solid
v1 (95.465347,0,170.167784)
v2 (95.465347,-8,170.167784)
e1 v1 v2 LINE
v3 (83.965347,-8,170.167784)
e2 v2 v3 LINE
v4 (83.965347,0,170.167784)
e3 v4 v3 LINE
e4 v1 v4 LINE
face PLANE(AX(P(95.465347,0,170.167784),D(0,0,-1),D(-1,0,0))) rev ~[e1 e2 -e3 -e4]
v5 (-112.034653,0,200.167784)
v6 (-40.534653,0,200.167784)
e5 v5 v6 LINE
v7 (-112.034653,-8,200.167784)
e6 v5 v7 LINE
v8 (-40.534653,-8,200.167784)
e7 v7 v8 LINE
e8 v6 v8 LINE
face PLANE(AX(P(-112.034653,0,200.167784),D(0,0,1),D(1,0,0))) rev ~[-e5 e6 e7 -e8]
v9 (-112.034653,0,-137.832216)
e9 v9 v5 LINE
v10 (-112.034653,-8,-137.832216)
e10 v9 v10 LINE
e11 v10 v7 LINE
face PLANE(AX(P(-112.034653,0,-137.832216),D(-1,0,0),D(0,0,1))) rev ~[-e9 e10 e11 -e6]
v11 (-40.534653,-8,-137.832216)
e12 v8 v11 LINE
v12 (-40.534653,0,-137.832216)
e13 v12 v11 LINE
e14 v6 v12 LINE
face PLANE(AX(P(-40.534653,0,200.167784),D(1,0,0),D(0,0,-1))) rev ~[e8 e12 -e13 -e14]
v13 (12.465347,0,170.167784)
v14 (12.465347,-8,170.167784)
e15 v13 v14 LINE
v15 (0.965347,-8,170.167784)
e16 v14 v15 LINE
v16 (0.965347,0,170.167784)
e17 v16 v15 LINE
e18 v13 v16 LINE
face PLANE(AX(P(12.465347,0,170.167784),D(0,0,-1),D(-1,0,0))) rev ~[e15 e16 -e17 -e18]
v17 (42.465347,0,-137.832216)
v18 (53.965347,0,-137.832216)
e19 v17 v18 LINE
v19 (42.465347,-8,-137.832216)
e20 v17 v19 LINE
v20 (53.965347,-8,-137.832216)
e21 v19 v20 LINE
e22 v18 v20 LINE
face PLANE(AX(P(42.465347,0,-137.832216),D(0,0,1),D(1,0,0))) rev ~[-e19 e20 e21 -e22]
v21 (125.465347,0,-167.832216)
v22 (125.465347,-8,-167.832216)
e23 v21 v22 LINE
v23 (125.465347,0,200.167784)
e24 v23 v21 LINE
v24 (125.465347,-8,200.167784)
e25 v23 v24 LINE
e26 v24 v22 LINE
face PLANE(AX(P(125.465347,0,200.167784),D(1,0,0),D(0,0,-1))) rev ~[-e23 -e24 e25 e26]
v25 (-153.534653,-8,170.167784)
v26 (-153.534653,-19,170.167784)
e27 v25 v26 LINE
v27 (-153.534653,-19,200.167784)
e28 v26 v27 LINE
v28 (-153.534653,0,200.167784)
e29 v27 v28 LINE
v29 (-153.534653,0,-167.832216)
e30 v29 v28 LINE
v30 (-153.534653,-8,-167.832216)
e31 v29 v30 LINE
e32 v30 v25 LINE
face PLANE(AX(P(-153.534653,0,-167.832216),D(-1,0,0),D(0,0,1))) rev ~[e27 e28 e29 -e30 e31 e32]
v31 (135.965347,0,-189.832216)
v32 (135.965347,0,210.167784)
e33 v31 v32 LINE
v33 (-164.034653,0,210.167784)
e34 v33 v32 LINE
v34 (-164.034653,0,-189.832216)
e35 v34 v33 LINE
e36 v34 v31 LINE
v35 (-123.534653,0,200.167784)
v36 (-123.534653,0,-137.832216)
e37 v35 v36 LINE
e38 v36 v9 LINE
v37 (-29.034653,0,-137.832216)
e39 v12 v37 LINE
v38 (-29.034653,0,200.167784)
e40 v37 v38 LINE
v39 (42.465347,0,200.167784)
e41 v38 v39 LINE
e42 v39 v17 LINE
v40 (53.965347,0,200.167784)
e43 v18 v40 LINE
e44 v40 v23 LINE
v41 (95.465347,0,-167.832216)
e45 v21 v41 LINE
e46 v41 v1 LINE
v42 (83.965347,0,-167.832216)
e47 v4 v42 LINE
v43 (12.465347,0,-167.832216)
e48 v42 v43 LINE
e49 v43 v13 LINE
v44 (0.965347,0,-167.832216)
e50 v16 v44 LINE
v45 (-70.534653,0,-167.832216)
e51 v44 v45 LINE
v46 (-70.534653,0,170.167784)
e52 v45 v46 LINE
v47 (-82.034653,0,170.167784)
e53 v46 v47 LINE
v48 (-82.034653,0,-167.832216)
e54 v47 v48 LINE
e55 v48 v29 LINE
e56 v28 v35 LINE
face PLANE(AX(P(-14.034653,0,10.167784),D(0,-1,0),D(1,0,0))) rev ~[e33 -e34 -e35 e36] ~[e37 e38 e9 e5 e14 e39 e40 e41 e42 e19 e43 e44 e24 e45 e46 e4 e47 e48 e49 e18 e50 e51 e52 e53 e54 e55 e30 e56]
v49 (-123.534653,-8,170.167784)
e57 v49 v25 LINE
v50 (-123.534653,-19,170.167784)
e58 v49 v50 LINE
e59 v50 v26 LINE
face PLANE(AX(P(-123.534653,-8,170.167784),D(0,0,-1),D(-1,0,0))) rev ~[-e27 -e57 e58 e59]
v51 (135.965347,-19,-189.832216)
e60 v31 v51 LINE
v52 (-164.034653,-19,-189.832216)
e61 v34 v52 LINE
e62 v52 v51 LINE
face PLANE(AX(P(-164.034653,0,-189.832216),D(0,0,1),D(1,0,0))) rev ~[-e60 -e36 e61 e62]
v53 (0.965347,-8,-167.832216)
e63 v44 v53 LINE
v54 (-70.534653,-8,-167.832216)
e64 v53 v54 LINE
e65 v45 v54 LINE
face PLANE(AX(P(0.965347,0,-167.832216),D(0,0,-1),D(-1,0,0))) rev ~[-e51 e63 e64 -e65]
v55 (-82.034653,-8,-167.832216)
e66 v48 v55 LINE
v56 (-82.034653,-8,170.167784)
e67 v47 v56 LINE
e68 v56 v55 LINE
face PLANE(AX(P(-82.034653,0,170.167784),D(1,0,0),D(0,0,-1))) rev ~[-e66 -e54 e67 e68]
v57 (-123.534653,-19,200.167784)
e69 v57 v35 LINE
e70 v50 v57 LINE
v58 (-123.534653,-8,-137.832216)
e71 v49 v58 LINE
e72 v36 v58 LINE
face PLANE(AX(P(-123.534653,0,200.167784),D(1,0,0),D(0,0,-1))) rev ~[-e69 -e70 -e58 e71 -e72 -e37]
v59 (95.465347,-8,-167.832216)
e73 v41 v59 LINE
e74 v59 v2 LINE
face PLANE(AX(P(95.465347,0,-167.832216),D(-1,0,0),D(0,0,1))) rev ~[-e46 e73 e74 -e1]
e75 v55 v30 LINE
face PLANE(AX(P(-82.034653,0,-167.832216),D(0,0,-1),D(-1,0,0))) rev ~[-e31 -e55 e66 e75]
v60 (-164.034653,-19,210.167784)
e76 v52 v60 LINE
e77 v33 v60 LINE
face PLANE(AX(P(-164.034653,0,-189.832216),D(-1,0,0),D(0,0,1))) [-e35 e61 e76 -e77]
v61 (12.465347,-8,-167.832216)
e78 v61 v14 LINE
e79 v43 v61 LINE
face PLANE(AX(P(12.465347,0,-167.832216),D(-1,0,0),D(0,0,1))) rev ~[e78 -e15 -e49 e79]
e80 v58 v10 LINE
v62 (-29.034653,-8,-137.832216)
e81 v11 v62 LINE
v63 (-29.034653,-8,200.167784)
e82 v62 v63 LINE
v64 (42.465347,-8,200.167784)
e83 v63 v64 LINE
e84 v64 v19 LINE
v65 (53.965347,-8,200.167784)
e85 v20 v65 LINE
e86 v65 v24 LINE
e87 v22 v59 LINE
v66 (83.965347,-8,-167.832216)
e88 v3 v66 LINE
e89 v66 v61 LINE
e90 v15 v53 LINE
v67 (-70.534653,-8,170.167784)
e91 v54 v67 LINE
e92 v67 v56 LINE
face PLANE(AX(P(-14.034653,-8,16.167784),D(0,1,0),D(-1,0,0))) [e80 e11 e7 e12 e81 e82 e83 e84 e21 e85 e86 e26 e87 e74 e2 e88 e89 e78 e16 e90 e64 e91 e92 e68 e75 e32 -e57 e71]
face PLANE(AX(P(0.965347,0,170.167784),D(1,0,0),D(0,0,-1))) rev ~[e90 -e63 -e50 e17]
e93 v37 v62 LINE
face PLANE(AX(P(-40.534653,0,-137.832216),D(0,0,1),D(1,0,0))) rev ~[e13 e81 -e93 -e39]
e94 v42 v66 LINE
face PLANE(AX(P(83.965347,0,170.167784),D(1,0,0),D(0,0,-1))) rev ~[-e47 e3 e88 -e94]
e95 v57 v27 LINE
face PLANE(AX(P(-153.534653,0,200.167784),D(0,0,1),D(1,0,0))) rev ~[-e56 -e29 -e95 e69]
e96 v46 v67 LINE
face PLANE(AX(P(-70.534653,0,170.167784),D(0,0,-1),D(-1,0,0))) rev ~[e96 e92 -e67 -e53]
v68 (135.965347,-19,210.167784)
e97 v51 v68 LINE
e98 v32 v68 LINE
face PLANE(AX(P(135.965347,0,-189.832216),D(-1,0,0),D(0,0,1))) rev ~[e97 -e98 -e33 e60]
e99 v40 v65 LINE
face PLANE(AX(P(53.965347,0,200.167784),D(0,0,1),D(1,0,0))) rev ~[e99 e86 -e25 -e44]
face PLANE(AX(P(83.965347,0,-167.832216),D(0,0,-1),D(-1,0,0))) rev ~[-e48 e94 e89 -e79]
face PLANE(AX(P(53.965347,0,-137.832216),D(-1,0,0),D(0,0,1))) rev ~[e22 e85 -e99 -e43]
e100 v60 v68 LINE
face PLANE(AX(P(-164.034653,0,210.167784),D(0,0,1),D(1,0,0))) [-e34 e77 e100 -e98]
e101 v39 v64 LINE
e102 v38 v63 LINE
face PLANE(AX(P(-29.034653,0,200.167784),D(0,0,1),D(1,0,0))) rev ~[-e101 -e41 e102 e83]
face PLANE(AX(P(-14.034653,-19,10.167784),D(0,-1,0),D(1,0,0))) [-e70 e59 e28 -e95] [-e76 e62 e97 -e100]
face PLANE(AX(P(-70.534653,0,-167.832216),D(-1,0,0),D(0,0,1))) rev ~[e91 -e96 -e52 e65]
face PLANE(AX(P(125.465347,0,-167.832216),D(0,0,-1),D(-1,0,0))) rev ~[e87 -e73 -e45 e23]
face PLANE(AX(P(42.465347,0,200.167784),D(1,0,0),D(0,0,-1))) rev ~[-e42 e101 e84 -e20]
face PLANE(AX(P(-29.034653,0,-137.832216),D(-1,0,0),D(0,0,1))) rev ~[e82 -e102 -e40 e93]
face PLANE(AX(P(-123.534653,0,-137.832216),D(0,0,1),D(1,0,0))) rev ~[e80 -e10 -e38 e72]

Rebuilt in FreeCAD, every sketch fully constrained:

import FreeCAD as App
import Part
import Sketcher
Q = App.Units.Quantity

doc = App.newDocument("Part")
body = doc.addObject("PartDesign::Body", "Body")

# Sketch on XZ plane
sketch1 = doc.addObject("Sketcher::SketchObject", "Sketch")
body.addObject(sketch1)
sketch1.AttachmentSupport = (doc.XZ_Plane, [""])
sketch1.MapMode = "FlatFace"
sketch1.addGeometry(Part.LineSegment(App.Vector(-164, 210, 0), App.Vector(-164, -190, 0)), False)
sketch1.addGeometry(Part.LineSegment(App.Vector(-164, -190, 0), App.Vector(136, -190, 0)), False)
sketch1.addGeometry(Part.LineSegment(App.Vector(136, -190, 0), App.Vector(136, 210, 0)), False)
sketch1.addGeometry(Part.LineSegment(App.Vector(136, 210, 0), App.Vector(-164, 210, 0)), False)
sketch1.addConstraint(Sketcher.Constraint("Coincident", 0, 2, 1, 1))
sketch1.addConstraint(Sketcher.Constraint("Coincident", 1, 2, 2, 1))
sketch1.addConstraint(Sketcher.Constraint("Coincident", 2, 2, 3, 1))
sketch1.addConstraint(Sketcher.Constraint("Coincident", 3, 2, 0, 1))
sketch1.addConstraint(Sketcher.Constraint("Vertical", 0))
sketch1.addConstraint(Sketcher.Constraint("Horizontal", 1))
sketch1.addConstraint(Sketcher.Constraint("Vertical", 2))
sketch1.addConstraint(Sketcher.Constraint("Horizontal", 3))
sketch1.addConstraint(Sketcher.Constraint("DistanceX", 1, 1, 1, 2, Q("300 mm")))
sketch1.addConstraint(Sketcher.Constraint("DistanceY", 0, 2, 0, 1, Q("400 mm")))
sketch1.addConstraint(Sketcher.Constraint("DistanceX", 0, 2, -1, 1, Q("164.034653 mm")))
sketch1.addConstraint(Sketcher.Constraint("DistanceY", 0, 2, -1, 1, Q("189.832216 mm")))
pad1 = doc.addObject("PartDesign::Pad", "Pad")
body.addObject(pad1)
pad1.Profile = sketch1
pad1.Length = 19

# Sketch on XZ plane
sketch2 = doc.addObject("Sketcher::SketchObject", "Sketch001")
body.addObject(sketch2)
sketch2.AttachmentSupport = (doc.XZ_Plane, [""])
sketch2.MapMode = "FlatFace"
sketch2.addGeometry(Part.LineSegment(App.Vector(125, 200, 0), App.Vector(125, -168, 0)), False)
sketch2.addGeometry(Part.LineSegment(App.Vector(125, -168, 0), App.Vector(95, -168, 0)), False)
sketch2.addGeometry(Part.LineSegment(App.Vector(95, -168, 0), App.Vector(95, 170, 0)), False)
sketch2.addGeometry(Part.LineSegment(App.Vector(95, 170, 0), App.Vector(84, 170, 0)), False)
sketch2.addGeometry(Part.LineSegment(App.Vector(84, 170, 0), App.Vector(84, -168, 0)), False)
sketch2.addGeometry(Part.LineSegment(App.Vector(84, -168, 0), App.Vector(12, -168, 0)), False)
sketch2.addGeometry(Part.LineSegment(App.Vector(12, -168, 0), App.Vector(12, 170, 0)), False)
sketch2.addGeometry(Part.LineSegment(App.Vector(12, 170, 0), App.Vector(1, 170, 0)), False)
sketch2.addGeometry(Part.LineSegment(App.Vector(1, 170, 0), App.Vector(1, -168, 0)), False)
sketch2.addGeometry(Part.LineSegment(App.Vector(1, -168, 0), App.Vector(-71, -168, 0)), False)
sketch2.addGeometry(Part.LineSegment(App.Vector(-71, -168, 0), App.Vector(-71, 170, 0)), False)
sketch2.addGeometry(Part.LineSegment(App.Vector(-71, 170, 0), App.Vector(-82, 170, 0)), False)
sketch2.addGeometry(Part.LineSegment(App.Vector(-82, 170, 0), App.Vector(-82, -168, 0)), False)
sketch2.addGeometry(Part.LineSegment(App.Vector(-82, -168, 0), App.Vector(-154, -168, 0)), False)
sketch2.addGeometry(Part.LineSegment(App.Vector(-154, -168, 0), App.Vector(-154, 200, 0)), False)
sketch2.addGeometry(Part.LineSegment(App.Vector(-154, 200, 0), App.Vector(-124, 200, 0)), False)
sketch2.addGeometry(Part.LineSegment(App.Vector(-124, 200, 0), App.Vector(-124, -138, 0)), False)
sketch2.addGeometry(Part.LineSegment(App.Vector(-124, -138, 0), App.Vector(-112, -138, 0)), False)
sketch2.addGeometry(Part.LineSegment(App.Vector(-112, -138, 0), App.Vector(-112, 200, 0)), False)
sketch2.addGeometry(Part.LineSegment(App.Vector(-112, 200, 0), App.Vector(-41, 200, 0)), False)
sketch2.addGeometry(Part.LineSegment(App.Vector(-41, 200, 0), App.Vector(-41, -138, 0)), False)
sketch2.addGeometry(Part.LineSegment(App.Vector(-41, -138, 0), App.Vector(-29, -138, 0)), False)
sketch2.addGeometry(Part.LineSegment(App.Vector(-29, -138, 0), App.Vector(-29, 200, 0)), False)
sketch2.addGeometry(Part.LineSegment(App.Vector(-29, 200, 0), App.Vector(42, 200, 0)), False)
sketch2.addGeometry(Part.LineSegment(App.Vector(42, 200, 0), App.Vector(42, -138, 0)), False)
sketch2.addGeometry(Part.LineSegment(App.Vector(42, -138, 0), App.Vector(54, -138, 0)), False)
sketch2.addGeometry(Part.LineSegment(App.Vector(54, -138, 0), App.Vector(54, 200, 0)), False)
sketch2.addGeometry(Part.LineSegment(App.Vector(54, 200, 0), App.Vector(125, 200, 0)), False)
sketch2.addConstraint(Sketcher.Constraint("Coincident", 0, 2, 1, 1))
sketch2.addConstraint(Sketcher.Constraint("Coincident", 1, 2, 2, 1))
sketch2.addConstraint(Sketcher.Constraint("Coincident", 2, 2, 3, 1))
sketch2.addConstraint(Sketcher.Constraint("Coincident", 3, 2, 4, 1))
sketch2.addConstraint(Sketcher.Constraint("Coincident", 4, 2, 5, 1))
sketch2.addConstraint(Sketcher.Constraint("Coincident", 5, 2, 6, 1))
sketch2.addConstraint(Sketcher.Constraint("Coincident", 6, 2, 7, 1))
sketch2.addConstraint(Sketcher.Constraint("Coincident", 7, 2, 8, 1))
sketch2.addConstraint(Sketcher.Constraint("Coincident", 8, 2, 9, 1))
sketch2.addConstraint(Sketcher.Constraint("Coincident", 9, 2, 10, 1))
sketch2.addConstraint(Sketcher.Constraint("Coincident", 10, 2, 11, 1))
sketch2.addConstraint(Sketcher.Constraint("Coincident", 11, 2, 12, 1))
sketch2.addConstraint(Sketcher.Constraint("Coincident", 12, 2, 13, 1))
sketch2.addConstraint(Sketcher.Constraint("Coincident", 13, 2, 14, 1))
sketch2.addConstraint(Sketcher.Constraint("Coincident", 14, 2, 15, 1))
sketch2.addConstraint(Sketcher.Constraint("Coincident", 15, 2, 16, 1))
sketch2.addConstraint(Sketcher.Constraint("Coincident", 16, 2, 17, 1))
sketch2.addConstraint(Sketcher.Constraint("Coincident", 17, 2, 18, 1))
sketch2.addConstraint(Sketcher.Constraint("Coincident", 18, 2, 19, 1))
sketch2.addConstraint(Sketcher.Constraint("Coincident", 19, 2, 20, 1))
sketch2.addConstraint(Sketcher.Constraint("Coincident", 20, 2, 21, 1))
sketch2.addConstraint(Sketcher.Constraint("Coincident", 21, 2, 22, 1))
sketch2.addConstraint(Sketcher.Constraint("Coincident", 22, 2, 23, 1))
sketch2.addConstraint(Sketcher.Constraint("Coincident", 23, 2, 24, 1))
sketch2.addConstraint(Sketcher.Constraint("Coincident", 24, 2, 25, 1))
sketch2.addConstraint(Sketcher.Constraint("Coincident", 25, 2, 26, 1))
sketch2.addConstraint(Sketcher.Constraint("Coincident", 26, 2, 27, 1))
sketch2.addConstraint(Sketcher.Constraint("Coincident", 27, 2, 0, 1))
sketch2.addConstraint(Sketcher.Constraint("Vertical", 0))
sketch2.addConstraint(Sketcher.Constraint("Horizontal", 1))
sketch2.addConstraint(Sketcher.Constraint("Vertical", 2))
sketch2.addConstraint(Sketcher.Constraint("Horizontal", 3))
sketch2.addConstraint(Sketcher.Constraint("Vertical", 4))
sketch2.addConstraint(Sketcher.Constraint("Horizontal", 5))
sketch2.addConstraint(Sketcher.Constraint("Vertical", 6))
sketch2.addConstraint(Sketcher.Constraint("Horizontal", 7))
sketch2.addConstraint(Sketcher.Constraint("Vertical", 8))
sketch2.addConstraint(Sketcher.Constraint("Horizontal", 9))
sketch2.addConstraint(Sketcher.Constraint("Vertical", 10))
sketch2.addConstraint(Sketcher.Constraint("Horizontal", 11))
sketch2.addConstraint(Sketcher.Constraint("Vertical", 12))
sketch2.addConstraint(Sketcher.Constraint("Horizontal", 13))
sketch2.addConstraint(Sketcher.Constraint("Vertical", 14))
sketch2.addConstraint(Sketcher.Constraint("Horizontal", 15))
sketch2.addConstraint(Sketcher.Constraint("Vertical", 16))
sketch2.addConstraint(Sketcher.Constraint("Horizontal", 17))
sketch2.addConstraint(Sketcher.Constraint("Vertical", 18))
sketch2.addConstraint(Sketcher.Constraint("Horizontal", 19))
sketch2.addConstraint(Sketcher.Constraint("Vertical", 20))
sketch2.addConstraint(Sketcher.Constraint("Horizontal", 21))
sketch2.addConstraint(Sketcher.Constraint("Vertical", 22))
sketch2.addConstraint(Sketcher.Constraint("Horizontal", 23))
sketch2.addConstraint(Sketcher.Constraint("Vertical", 24))
sketch2.addConstraint(Sketcher.Constraint("Horizontal", 25))
sketch2.addConstraint(Sketcher.Constraint("Vertical", 26))
sketch2.addConstraint(Sketcher.Constraint("Horizontal", 27))
sketch2.addConstraint(Sketcher.Constraint("Horizontal", 1, 2, 4, 2))
sketch2.addConstraint(Sketcher.Constraint("Horizontal", 3, 2, 6, 2))
sketch2.addConstraint(Sketcher.Constraint("Horizontal", 5, 2, 8, 2))
sketch2.addConstraint(Sketcher.Constraint("Horizontal", 7, 2, 10, 2))
sketch2.addConstraint(Sketcher.Constraint("Horizontal", 9, 2, 12, 2))
sketch2.addConstraint(Sketcher.Constraint("Horizontal", 15, 2, 18, 2))
sketch2.addConstraint(Sketcher.Constraint("Horizontal", 17, 2, 20, 2))
sketch2.addConstraint(Sketcher.Constraint("Horizontal", 19, 2, 22, 2))
sketch2.addConstraint(Sketcher.Constraint("Horizontal", 21, 2, 24, 2))
sketch2.addConstraint(Sketcher.Constraint("Horizontal", 23, 2, 26, 2))
sketch2.addConstraint(Sketcher.Constraint("Equal", 3, 7))
sketch2.addConstraint(Sketcher.Constraint("Equal", 5, 9))
sketch2.addConstraint(Sketcher.Constraint("Equal", 7, 11))
sketch2.addConstraint(Sketcher.Constraint("Equal", 9, 13))
sketch2.addConstraint(Sketcher.Constraint("Equal", 1, 15))
sketch2.addConstraint(Sketcher.Constraint("Equal", 11, 17))
sketch2.addConstraint(Sketcher.Constraint("Equal", 13, 19))
sketch2.addConstraint(Sketcher.Constraint("Equal", 17, 21))
sketch2.addConstraint(Sketcher.Constraint("Equal", 19, 23))
sketch2.addConstraint(Sketcher.Constraint("Equal", 21, 25))
sketch2.addConstraint(Sketcher.Constraint("Equal", 12, 16))
sketch2.addConstraint(Sketcher.Constraint("DistanceX", 1, 2, 1, 1, Q("30 mm")))
sketch2.addConstraint(Sketcher.Constraint("DistanceY", 0, 2, 0, 1, Q("368 mm")))
sketch2.addConstraint(Sketcher.Constraint("DistanceY", 2, 1, 2, 2, Q("338 mm")))
sketch2.addConstraint(Sketcher.Constraint("DistanceX", 3, 2, 3, 1, Q("11.5 mm")))
sketch2.addConstraint(Sketcher.Constraint("DistanceX", 5, 2, 5, 1, Q("71.5 mm")))
sketch2.addConstraint(Sketcher.Constraint("DistanceX", -1, 1, 0, 2, Q("125.465347 mm")))
sketch2.addConstraint(Sketcher.Constraint("DistanceY", 0, 2, -1, 1, Q("167.832216 mm")))
pocket1 = doc.addObject("PartDesign::Pocket", "Pocket")
body.addObject(pocket1)
pocket1.Profile = sketch2
pocket1.Length = 8
pocket1.Reversed = True

# Sketch on XZ plane
sketch3 = doc.addObject("Sketcher::SketchObject", "Sketch002")
body.addObject(sketch3)
sketch3.AttachmentSupport = (doc.XZ_Plane, [""])
sketch3.MapMode = "FlatFace"
sketch3.AttachmentOffset = App.Placement(App.Vector(0, 0, 8), App.Rotation())
sketch3.addGeometry(Part.LineSegment(App.Vector(-124, 200, 0), App.Vector(-124, 170, 0)), False)
sketch3.addGeometry(Part.LineSegment(App.Vector(-124, 170, 0), App.Vector(-154, 170, 0)), False)
sketch3.addGeometry(Part.LineSegment(App.Vector(-154, 170, 0), App.Vector(-154, 200, 0)), False)
sketch3.addGeometry(Part.LineSegment(App.Vector(-154, 200, 0), App.Vector(-124, 200, 0)), False)
sketch3.addConstraint(Sketcher.Constraint("Coincident", 0, 2, 1, 1))
sketch3.addConstraint(Sketcher.Constraint("Coincident", 1, 2, 2, 1))
sketch3.addConstraint(Sketcher.Constraint("Coincident", 2, 2, 3, 1))
sketch3.addConstraint(Sketcher.Constraint("Coincident", 3, 2, 0, 1))
sketch3.addConstraint(Sketcher.Constraint("Vertical", 0))
sketch3.addConstraint(Sketcher.Constraint("Horizontal", 1))
sketch3.addConstraint(Sketcher.Constraint("Vertical", 2))
sketch3.addConstraint(Sketcher.Constraint("Horizontal", 3))
sketch3.addConstraint(Sketcher.Constraint("Equal", 3, 0))
sketch3.addConstraint(Sketcher.Constraint("DistanceX", 1, 2, 1, 1, Q("30 mm")))
sketch3.addConstraint(Sketcher.Constraint("DistanceX", 0, 2, -1, 1, Q("123.534653 mm")))
sketch3.addConstraint(Sketcher.Constraint("DistanceY", -1, 1, 0, 2, Q("170.167784 mm")))
pocket2 = doc.addObject("PartDesign::Pocket", "Pocket001")
body.addObject(pocket2)
pocket2.Profile = sketch3
pocket2.Length = 11
pocket2.Reversed = True

doc.recompute()
